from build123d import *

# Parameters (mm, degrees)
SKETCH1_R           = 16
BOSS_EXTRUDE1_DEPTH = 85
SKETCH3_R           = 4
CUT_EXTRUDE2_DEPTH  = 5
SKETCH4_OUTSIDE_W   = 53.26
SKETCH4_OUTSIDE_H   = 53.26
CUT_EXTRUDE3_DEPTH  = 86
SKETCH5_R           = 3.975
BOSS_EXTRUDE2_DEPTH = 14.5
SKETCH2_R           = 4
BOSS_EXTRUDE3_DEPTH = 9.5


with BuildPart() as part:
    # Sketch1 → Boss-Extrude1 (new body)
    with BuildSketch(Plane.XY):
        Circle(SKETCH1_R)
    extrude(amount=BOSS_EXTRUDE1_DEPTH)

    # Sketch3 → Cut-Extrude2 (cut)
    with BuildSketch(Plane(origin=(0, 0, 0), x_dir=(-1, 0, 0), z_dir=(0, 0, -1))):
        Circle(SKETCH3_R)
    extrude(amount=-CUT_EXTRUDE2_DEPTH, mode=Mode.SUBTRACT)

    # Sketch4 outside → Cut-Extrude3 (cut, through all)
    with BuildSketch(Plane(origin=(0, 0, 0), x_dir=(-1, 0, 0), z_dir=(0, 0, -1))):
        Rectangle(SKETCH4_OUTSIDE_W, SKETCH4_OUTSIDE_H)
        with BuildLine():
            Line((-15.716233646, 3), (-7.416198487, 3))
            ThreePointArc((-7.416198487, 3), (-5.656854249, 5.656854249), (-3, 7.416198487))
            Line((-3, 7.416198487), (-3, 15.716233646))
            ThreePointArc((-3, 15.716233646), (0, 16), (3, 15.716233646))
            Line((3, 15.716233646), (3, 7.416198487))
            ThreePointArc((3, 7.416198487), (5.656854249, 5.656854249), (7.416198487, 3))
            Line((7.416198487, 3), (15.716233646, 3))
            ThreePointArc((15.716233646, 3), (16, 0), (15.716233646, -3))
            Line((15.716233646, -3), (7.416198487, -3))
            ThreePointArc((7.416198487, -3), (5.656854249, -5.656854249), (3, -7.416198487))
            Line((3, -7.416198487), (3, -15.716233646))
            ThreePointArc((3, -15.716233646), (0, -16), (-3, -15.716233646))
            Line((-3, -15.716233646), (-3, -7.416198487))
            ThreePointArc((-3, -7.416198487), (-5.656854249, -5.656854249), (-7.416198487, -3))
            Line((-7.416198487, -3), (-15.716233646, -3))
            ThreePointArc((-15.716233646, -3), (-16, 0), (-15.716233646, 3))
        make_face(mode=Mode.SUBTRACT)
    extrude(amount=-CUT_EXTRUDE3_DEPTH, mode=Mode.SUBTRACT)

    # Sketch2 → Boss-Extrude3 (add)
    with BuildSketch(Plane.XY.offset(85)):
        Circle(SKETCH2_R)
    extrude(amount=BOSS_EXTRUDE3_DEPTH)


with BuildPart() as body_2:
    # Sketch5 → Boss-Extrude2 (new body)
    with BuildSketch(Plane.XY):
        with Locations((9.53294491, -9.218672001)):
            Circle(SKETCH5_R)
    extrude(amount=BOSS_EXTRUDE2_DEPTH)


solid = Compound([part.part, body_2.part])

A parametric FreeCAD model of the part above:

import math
import FreeCAD as App
import Part
import Sketcher
from FreeCAD import Vector
Q = App.Units.Quantity

doc = App.newDocument("Part")
body = doc.addObject("PartDesign::Body", "Body")

sketch1 = doc.addObject("Sketcher::SketchObject", "Sketch")
body.addObject(sketch1)
sketch1.AttachmentSupport = (doc.XY_Plane, [""])
sketch1.MapMode = "FlatFace"
sketch1.addGeometry(Part.Circle(Vector(0, 0, 0), Vector(0, 0, 1), 16), False)
sketch1.addConstraint([
    Sketcher.Constraint("Coincident", 0, 3, -1, 1),
    Sketcher.Constraint("Diameter", 0, Q("32 mm")),
])
pad1 = doc.addObject("PartDesign::Pad", "Pad")
body.addObject(pad1)
pad1.Profile = sketch1
pad1.Length = 85

sketch2 = doc.addObject("Sketcher::SketchObject", "Sketch001")
body.addObject(sketch2)
sketch2.AttachmentSupport = (doc.XY_Plane, [""])
sketch2.MapMode = "FlatFace"
sketch2.addGeometry(Part.Circle(Vector(0, 0, 0), Vector(0, 0, 1), 4), False)
sketch2.addConstraint([
    Sketcher.Constraint("Coincident", 0, 3, -1, 1),
    Sketcher.Constraint("Diameter", 0, Q("8 mm")),
])
pocket1 = doc.addObject("PartDesign::Pocket", "Pocket")
body.addObject(pocket1)
pocket1.Profile = sketch2
pocket1.Length = 5
pocket1.Reversed = True

sketch3 = doc.addObject("Sketcher::SketchObject", "Sketch002")
body.addObject(sketch3)
sketch3.AttachmentSupport = (doc.XY_Plane, [""])
sketch3.MapMode = "FlatFace"
sketch3.addGeometry([
    Part.LineSegment(Vector(27, 27, 0), Vector(27, -27, 0)),
    Part.LineSegment(Vector(27, -27, 0), Vector(-27, -27, 0)),
    Part.LineSegment(Vector(-27, -27, 0), Vector(-27, 27, 0)),
    Part.LineSegment(Vector(-27, 27, 0), Vector(27, 27, 0)),
    Part.ArcOfCircle(Part.Circle(Vector(0, 0, 0), Vector(0, 0, 1), 16), math.radians(-11), math.radians(11)),
    Part.LineSegment(Vector(16, 3, 0), Vector(7, 3, 0)),
    Part.ArcOfCircle(Part.Circle(Vector(0, 0, 0), Vector(0, 0, 1), 8), math.radians(22), math.radians(68)),
    Part.LineSegment(Vector(3, 7, 0), Vector(3, 16, 0)),
    Part.ArcOfCircle(Part.Circle(Vector(0, 0, 0), Vector(0, 0, 1), 16), math.radians(79), math.radians(101)),
    Part.LineSegment(Vector(-3, 16, 0), Vector(-3, 7, 0)),
    Part.ArcOfCircle(Part.Circle(Vector(0, 0, 0), Vector(0, 0, 1), 8), math.radians(112), math.radians(158)),
    Part.LineSegment(Vector(-7, 3, 0), Vector(-16, 3, 0)),
    Part.ArcOfCircle(Part.Circle(Vector(0, 0, 0), Vector(0, 0, 1), 16), math.radians(169), math.radians(191)),
    Part.LineSegment(Vector(-16, -3, 0), Vector(-7, -3, 0)),
    Part.ArcOfCircle(Part.Circle(Vector(0, 0, 0), Vector(0, 0, 1), 8), math.radians(-158), math.radians(-112)),
    Part.LineSegment(Vector(-3, -7, 0), Vector(-3, -16, 0)),
    Part.ArcOfCircle(Part.Circle(Vector(0, 0, 0), Vector(0, 0, 1), 16), math.radians(-101), math.radians(-79)),
    Part.LineSegment(Vector(3, -16, 0), Vector(3, -7, 0)),
    Part.ArcOfCircle(Part.Circle(Vector(0, 0, 0), Vector(0, 0, 1), 8), math.radians(-68), math.radians(-22)),
    Part.LineSegment(Vector(7, -3, 0), Vector(16, -3, 0)),
], False)
sketch3.addConstraint([
    Sketcher.Constraint("Coincident", 0, 2, 1, 1),
    Sketcher.Constraint("Coincident", 1, 2, 2, 1),
    Sketcher.Constraint("Coincident", 2, 2, 3, 1),
    Sketcher.Constraint("Coincident", 3, 2, 0, 1),
    Sketcher.Constraint("Coincident", 4, 2, 5, 1),
    Sketcher.Constraint("Coincident", 5, 2, 6, 1),
    Sketcher.Constraint("Coincident", 6, 2, 7, 1),
    Sketcher.Constraint("Coincident", 7, 2, 8, 1),
    Sketcher.Constraint("Coincident", 8, 2, 9, 1),
    Sketcher.Constraint("Coincident", 9, 2, 10, 1),
    Sketcher.Constraint("Coincident", 10, 2, 11, 1),
    Sketcher.Constraint("Coincident", 11, 2, 12, 1),
    Sketcher.Constraint("Coincident", 12, 2, 13, 1),
    Sketcher.Constraint("Coincident", 13, 2, 14, 1),
    Sketcher.Constraint("Coincident", 14, 2, 15, 1),
    Sketcher.Constraint("Coincident", 15, 2, 16, 1),
    Sketcher.Constraint("Coincident", 16, 2, 17, 1),
    Sketcher.Constraint("Coincident", 17, 2, 18, 1),
    Sketcher.Constraint("Coincident", 18, 2, 19, 1),
    Sketcher.Constraint("Coincident", 19, 2, 4, 1),
    Sketcher.Constraint("Vertical", 0),
    Sketcher.Constraint("Horizontal", 1),
    Sketcher.Constraint("Vertical", 2),
    Sketcher.Constraint("Horizontal", 3),
    Sketcher.Constraint("Horizontal", 5),
    Sketcher.Constraint("Vertical", 7),
    Sketcher.Constraint("Vertical", 9),
    Sketcher.Constraint("Horizontal", 11),
    Sketcher.Constraint("Horizontal", 13),
    Sketcher.Constraint("Vertical", 15),
    Sketcher.Constraint("Vertical", 17),
    Sketcher.Constraint("Horizontal", 19),
    Sketcher.Constraint("Coincident", 4, 3, -1, 1),
    Sketcher.Constraint("Coincident", 6, 3, -1, 1),
    Sketcher.Constraint("Coincident", 8, 3, -1, 1),
    Sketcher.Constraint("Coincident", 10, 3, -1, 1),
    Sketcher.Constraint("Coincident", 12, 3, -1, 1),
    Sketcher.Constraint("Coincident", 14, 3, -1, 1),
    Sketcher.Constraint("Coincident", 16, 3, -1, 1),
    Sketcher.Constraint("Coincident", 18, 3, -1, 1),
    Sketcher.Constraint("Equal", 4, 8),
    Sketcher.Constraint("Equal", 6, 10),
    Sketcher.Constraint("Equal", 8, 12),
    Sketcher.Constraint("Equal", 10, 14),
    Sketcher.Constraint("Equal", 12, 16),
    Sketcher.Constraint("Equal", 14, 18),
    Sketcher.Constraint("Symmetric", 0, 2, 2, 2, -1, 1),
    Sketcher.Constraint("Horizontal", 7, 2, 8, 2),
    Sketcher.Constraint("Horizontal", 5, 2, 10, 2),
    Sketcher.Constraint("Horizontal", 15, 2, 16, 2),
    Sketcher.Constraint("Horizontal", 13, 2, 18, 2),
    Sketcher.Constraint("Vertical", 11, 2, 12, 2),
    Sketcher.Constraint("Vertical", 9, 2, 14, 2),
    Sketcher.Constraint("Equal", 3, 0),
    Sketcher.Constraint("Equal", 19, 7),
    Sketcher.Constraint("Radius", 4, Q("16 mm")),
    Sketcher.Constraint("Radius", 6, Q("8 mm")),
    Sketcher.Constraint("DistanceY", -1, 1, 4, 2, Q("3 mm")),
    Sketcher.Constraint("DistanceX", 1, 2, 1, 1, Q("53.26 mm")),
])
pocket2 = doc.addObject("PartDesign::Pocket", "Pocket001")
body.addObject(pocket2)
pocket2.Profile = sketch3
pocket2.Type = "ThroughAll"
pocket2.Reversed = True

sketch4 = doc.addObject("Sketcher::SketchObject", "Sketch003")
body.addObject(sketch4)
sketch4.AttachmentSupport = (doc.XY_Plane, [""])
sketch4.MapMode = "FlatFace"
sketch4.AttachmentOffset = App.Placement(Vector(0, 0, 85), App.Rotation())
sketch4.addGeometry(Part.Circle(Vector(0, 0, 0), Vector(0, 0, 1), 4), False)
sketch4.addConstraint([
    Sketcher.Constraint("Coincident", 0, 3, -1, 1),
    Sketcher.Constraint("Diameter", 0, Q("8 mm")),
])
pad2 = doc.addObject("PartDesign::Pad", "Pad001")
body.addObject(pad2)
pad2.Profile = sketch4
pad2.Length = 9.5
body2 = doc.addObject("PartDesign::Body", "Body001")

sketch5 = doc.addObject("Sketcher::SketchObject", "Sketch004")
body2.addObject(sketch5)
sketch5.AttachmentSupport = (doc.getObject("XY_Plane001"), [""])
sketch5.MapMode = "FlatFace"
sketch5.addGeometry(Part.Circle(Vector(9.5, -9.2, 0), Vector(0, 0, 1), 4), False)
sketch5.addConstraint([
    Sketcher.Constraint("Diameter", 0, Q("7.95 mm")),
    Sketcher.Constraint("DistanceX", -1, 1, 0, 3, Q("9.532945 mm")),
    Sketcher.Constraint("DistanceY", 0, 3, -1, 1, Q("9.218672 mm")),
])
pad3 = doc.addObject("PartDesign::Pad", "Pad002")
body2.addObject(pad3)
pad3.Profile = sketch5
pad3.Length = 14.5

doc.recompute()
